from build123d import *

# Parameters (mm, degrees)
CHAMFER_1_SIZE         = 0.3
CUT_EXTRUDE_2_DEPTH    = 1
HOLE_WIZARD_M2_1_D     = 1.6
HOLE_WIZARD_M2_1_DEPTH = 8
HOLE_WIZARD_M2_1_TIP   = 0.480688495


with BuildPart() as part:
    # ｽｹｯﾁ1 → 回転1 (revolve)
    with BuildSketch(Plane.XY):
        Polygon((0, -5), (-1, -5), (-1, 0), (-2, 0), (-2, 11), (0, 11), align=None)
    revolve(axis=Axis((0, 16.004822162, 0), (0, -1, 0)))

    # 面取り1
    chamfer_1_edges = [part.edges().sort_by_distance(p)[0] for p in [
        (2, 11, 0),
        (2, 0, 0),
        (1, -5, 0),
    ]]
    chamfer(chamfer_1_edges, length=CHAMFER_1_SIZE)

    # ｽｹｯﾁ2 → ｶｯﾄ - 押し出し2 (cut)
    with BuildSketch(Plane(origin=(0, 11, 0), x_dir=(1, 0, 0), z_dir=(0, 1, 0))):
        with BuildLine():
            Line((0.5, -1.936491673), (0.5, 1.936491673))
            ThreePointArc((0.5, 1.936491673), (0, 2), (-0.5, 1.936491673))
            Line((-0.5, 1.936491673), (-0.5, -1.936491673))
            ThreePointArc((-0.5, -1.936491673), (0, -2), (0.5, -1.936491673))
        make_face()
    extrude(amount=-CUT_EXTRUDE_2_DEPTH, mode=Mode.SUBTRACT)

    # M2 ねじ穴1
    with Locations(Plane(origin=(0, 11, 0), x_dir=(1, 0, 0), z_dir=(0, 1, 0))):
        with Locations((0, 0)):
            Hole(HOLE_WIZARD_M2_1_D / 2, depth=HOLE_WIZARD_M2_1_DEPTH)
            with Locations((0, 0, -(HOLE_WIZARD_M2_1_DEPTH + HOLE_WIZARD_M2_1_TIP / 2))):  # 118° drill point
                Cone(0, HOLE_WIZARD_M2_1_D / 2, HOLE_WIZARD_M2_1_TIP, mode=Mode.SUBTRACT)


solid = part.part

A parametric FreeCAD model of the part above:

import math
import FreeCAD as App
import Part
import Sketcher

V = App.Vector


def edges_at(feature, points):
    """Names of the edges that pass closest to the given points."""
    edges = feature.Shape.Edges
    near = lambda p: min(range(len(edges)), key=lambda i: edges[i].distToShape(Part.Vertex(*p))[0])
    return sorted({f"Edge{near(p) + 1}" for p in points})


def add_polygon(sketch, points):
    """Adds a closed chain of lines whose ends are joined by coincident constraints."""
    first, n = sketch.GeometryCount, len(points)
    for a, b in zip(points, points[1:] + points[:1]):
        sketch.addGeometry(Part.LineSegment(App.Vector(*a, 0), App.Vector(*b, 0)), False)
    for i in range(n):
        sketch.addConstraint(Sketcher.Constraint("Coincident", first + i, 2, first + (i + 1) % n, 1))

doc = App.newDocument("Part")
body = doc.addObject("PartDesign::Body", "Body")

sketch1 = doc.addObject("Sketcher::SketchObject", "Sketch")
body.addObject(sketch1)
sketch1.AttachmentSupport = (doc.XY_Plane, [""])
sketch1.MapMode = "FlatFace"
add_polygon(sketch1, [(-1, -5), (0, -5), (0, 11), (-2, 11), (-2, 0), (-1, 0)])
sketch1.addConstraint(Sketcher.Constraint("Horizontal", 0))
sketch1.addConstraint(Sketcher.Constraint("Vertical", 1))
sketch1.addConstraint(Sketcher.Constraint("Horizontal", 2))
sketch1.addConstraint(Sketcher.Constraint("Vertical", 3))
sketch1.addConstraint(Sketcher.Constraint("Horizontal", 4))
sketch1.addConstraint(Sketcher.Constraint("Vertical", 5))
sketch1.addConstraint(Sketcher.Constraint("PointOnObject", 0, 2, -2))
sketch1.addConstraint(Sketcher.Constraint("PointOnObject", 3, 2, -1))
sketch1.addConstraint(Sketcher.Constraint("Equal", 0, 4))
sketch1.addConstraint(Sketcher.Constraint("DistanceX", 0, 1, 0, 2, 1.0))
sketch1.addConstraint(Sketcher.Constraint("DistanceY", 1, 1, 1, 2, 16.0))
sketch1.addConstraint(Sketcher.Constraint("DistanceY", 3, 2, 3, 1, 11.0))
revolution = doc.addObject("PartDesign::Revolution", "Revolution")
body.addObject(revolution)
revolution.Profile = sketch1
revolution.ReferenceAxis = (sketch1, ["V_Axis"])
revolution.Angle = 360
doc.recompute()

chamfer = doc.addObject("PartDesign::Chamfer", "Chamfer")
body.addObject(chamfer)
chamfer.Base = (revolution, edges_at(revolution, [(2, 11, 0), (2, 0, 0), (1, -5, 0)]))
chamfer.Size = 0.3

sketch2 = doc.addObject("Sketcher::SketchObject", "Sketch001")
body.addObject(sketch2)
sketch2.AttachmentSupport = (doc.XZ_Plane, [""])
sketch2.MapMode = "FlatFace"
sketch2.AttachmentOffset = App.Placement(V(0, 0, -11), App.Rotation())
sketch2.addGeometry(Part.LineSegment(V(0.5, 1.9, 0), V(0.5, -1.9, 0)), False)
sketch2.addGeometry(Part.ArcOfCircle(Part.Circle(V(0, 0, 0), V(0, 0, 1), 2), math.radians(-104), math.radians(-76)), False)
sketch2.addGeometry(Part.LineSegment(V(-0.5, -1.9, 0), V(-0.5, 1.9, 0)), False)
sketch2.addGeometry(Part.ArcOfCircle(Part.Circle(V(0, 0, 0), V(0, 0, 1), 2), math.radians(76), math.radians(104)), False)
sketch2.addConstraint(Sketcher.Constraint("Coincident", 0, 2, 1, 2))
sketch2.addConstraint(Sketcher.Constraint("Coincident", 1, 1, 2, 1))
sketch2.addConstraint(Sketcher.Constraint("Coincident", 2, 2, 3, 2))
sketch2.addConstraint(Sketcher.Constraint("Coincident", 3, 1, 0, 1))
sketch2.addConstraint(Sketcher.Constraint("Vertical", 0))
sketch2.addConstraint(Sketcher.Constraint("Vertical", 2))
sketch2.addConstraint(Sketcher.Constraint("Coincident", 1, 3, -1, 1))
sketch2.addConstraint(Sketcher.Constraint("Coincident", 3, 3, -1, 1))
sketch2.addConstraint(Sketcher.Constraint("Equal", 1, 3))
sketch2.addConstraint(Sketcher.Constraint("Horizontal", 0, 2, 1, 1))
sketch2.addConstraint(Sketcher.Constraint("Radius", 1, 2.0))
sketch2.addConstraint(Sketcher.Constraint("DistanceX", 1, 1, 0, 2, 1.0))
pocket1 = doc.addObject("PartDesign::Pocket", "Pocket")
body.addObject(pocket1)
pocket1.Profile = sketch2
pocket1.Length = 1
pocket1.Reversed = True

sketch3 = doc.addObject("Sketcher::SketchObject", "Sketch002")
body.addObject(sketch3)
sketch3.AttachmentSupport = (doc.XZ_Plane, [""])
sketch3.MapMode = "FlatFace"
sketch3.AttachmentOffset = App.Placement(V(0, 0, -11), App.Rotation())
sketch3.addGeometry(Part.Circle(V(0, 0, 0), V(0, 0, 1), 0.8), False)
sketch3.addConstraint(Sketcher.Constraint("Coincident", 0, 3, -1, 1))
sketch3.addConstraint(Sketcher.Constraint("Diameter", 0, 1.6))
doc.recompute()
hole = doc.addObject("PartDesign::Hole", "Hole")
body.addObject(hole)
hole.Profile = sketch3
hole.ThreadType = "None"
hole.Diameter = 1.6
hole.DepthType = "Dimension"
hole.Depth = 8
hole.DrillPoint = "Angled"
hole.DrillPointAngle = 118
hole.Reversed = True

doc.recompute()
